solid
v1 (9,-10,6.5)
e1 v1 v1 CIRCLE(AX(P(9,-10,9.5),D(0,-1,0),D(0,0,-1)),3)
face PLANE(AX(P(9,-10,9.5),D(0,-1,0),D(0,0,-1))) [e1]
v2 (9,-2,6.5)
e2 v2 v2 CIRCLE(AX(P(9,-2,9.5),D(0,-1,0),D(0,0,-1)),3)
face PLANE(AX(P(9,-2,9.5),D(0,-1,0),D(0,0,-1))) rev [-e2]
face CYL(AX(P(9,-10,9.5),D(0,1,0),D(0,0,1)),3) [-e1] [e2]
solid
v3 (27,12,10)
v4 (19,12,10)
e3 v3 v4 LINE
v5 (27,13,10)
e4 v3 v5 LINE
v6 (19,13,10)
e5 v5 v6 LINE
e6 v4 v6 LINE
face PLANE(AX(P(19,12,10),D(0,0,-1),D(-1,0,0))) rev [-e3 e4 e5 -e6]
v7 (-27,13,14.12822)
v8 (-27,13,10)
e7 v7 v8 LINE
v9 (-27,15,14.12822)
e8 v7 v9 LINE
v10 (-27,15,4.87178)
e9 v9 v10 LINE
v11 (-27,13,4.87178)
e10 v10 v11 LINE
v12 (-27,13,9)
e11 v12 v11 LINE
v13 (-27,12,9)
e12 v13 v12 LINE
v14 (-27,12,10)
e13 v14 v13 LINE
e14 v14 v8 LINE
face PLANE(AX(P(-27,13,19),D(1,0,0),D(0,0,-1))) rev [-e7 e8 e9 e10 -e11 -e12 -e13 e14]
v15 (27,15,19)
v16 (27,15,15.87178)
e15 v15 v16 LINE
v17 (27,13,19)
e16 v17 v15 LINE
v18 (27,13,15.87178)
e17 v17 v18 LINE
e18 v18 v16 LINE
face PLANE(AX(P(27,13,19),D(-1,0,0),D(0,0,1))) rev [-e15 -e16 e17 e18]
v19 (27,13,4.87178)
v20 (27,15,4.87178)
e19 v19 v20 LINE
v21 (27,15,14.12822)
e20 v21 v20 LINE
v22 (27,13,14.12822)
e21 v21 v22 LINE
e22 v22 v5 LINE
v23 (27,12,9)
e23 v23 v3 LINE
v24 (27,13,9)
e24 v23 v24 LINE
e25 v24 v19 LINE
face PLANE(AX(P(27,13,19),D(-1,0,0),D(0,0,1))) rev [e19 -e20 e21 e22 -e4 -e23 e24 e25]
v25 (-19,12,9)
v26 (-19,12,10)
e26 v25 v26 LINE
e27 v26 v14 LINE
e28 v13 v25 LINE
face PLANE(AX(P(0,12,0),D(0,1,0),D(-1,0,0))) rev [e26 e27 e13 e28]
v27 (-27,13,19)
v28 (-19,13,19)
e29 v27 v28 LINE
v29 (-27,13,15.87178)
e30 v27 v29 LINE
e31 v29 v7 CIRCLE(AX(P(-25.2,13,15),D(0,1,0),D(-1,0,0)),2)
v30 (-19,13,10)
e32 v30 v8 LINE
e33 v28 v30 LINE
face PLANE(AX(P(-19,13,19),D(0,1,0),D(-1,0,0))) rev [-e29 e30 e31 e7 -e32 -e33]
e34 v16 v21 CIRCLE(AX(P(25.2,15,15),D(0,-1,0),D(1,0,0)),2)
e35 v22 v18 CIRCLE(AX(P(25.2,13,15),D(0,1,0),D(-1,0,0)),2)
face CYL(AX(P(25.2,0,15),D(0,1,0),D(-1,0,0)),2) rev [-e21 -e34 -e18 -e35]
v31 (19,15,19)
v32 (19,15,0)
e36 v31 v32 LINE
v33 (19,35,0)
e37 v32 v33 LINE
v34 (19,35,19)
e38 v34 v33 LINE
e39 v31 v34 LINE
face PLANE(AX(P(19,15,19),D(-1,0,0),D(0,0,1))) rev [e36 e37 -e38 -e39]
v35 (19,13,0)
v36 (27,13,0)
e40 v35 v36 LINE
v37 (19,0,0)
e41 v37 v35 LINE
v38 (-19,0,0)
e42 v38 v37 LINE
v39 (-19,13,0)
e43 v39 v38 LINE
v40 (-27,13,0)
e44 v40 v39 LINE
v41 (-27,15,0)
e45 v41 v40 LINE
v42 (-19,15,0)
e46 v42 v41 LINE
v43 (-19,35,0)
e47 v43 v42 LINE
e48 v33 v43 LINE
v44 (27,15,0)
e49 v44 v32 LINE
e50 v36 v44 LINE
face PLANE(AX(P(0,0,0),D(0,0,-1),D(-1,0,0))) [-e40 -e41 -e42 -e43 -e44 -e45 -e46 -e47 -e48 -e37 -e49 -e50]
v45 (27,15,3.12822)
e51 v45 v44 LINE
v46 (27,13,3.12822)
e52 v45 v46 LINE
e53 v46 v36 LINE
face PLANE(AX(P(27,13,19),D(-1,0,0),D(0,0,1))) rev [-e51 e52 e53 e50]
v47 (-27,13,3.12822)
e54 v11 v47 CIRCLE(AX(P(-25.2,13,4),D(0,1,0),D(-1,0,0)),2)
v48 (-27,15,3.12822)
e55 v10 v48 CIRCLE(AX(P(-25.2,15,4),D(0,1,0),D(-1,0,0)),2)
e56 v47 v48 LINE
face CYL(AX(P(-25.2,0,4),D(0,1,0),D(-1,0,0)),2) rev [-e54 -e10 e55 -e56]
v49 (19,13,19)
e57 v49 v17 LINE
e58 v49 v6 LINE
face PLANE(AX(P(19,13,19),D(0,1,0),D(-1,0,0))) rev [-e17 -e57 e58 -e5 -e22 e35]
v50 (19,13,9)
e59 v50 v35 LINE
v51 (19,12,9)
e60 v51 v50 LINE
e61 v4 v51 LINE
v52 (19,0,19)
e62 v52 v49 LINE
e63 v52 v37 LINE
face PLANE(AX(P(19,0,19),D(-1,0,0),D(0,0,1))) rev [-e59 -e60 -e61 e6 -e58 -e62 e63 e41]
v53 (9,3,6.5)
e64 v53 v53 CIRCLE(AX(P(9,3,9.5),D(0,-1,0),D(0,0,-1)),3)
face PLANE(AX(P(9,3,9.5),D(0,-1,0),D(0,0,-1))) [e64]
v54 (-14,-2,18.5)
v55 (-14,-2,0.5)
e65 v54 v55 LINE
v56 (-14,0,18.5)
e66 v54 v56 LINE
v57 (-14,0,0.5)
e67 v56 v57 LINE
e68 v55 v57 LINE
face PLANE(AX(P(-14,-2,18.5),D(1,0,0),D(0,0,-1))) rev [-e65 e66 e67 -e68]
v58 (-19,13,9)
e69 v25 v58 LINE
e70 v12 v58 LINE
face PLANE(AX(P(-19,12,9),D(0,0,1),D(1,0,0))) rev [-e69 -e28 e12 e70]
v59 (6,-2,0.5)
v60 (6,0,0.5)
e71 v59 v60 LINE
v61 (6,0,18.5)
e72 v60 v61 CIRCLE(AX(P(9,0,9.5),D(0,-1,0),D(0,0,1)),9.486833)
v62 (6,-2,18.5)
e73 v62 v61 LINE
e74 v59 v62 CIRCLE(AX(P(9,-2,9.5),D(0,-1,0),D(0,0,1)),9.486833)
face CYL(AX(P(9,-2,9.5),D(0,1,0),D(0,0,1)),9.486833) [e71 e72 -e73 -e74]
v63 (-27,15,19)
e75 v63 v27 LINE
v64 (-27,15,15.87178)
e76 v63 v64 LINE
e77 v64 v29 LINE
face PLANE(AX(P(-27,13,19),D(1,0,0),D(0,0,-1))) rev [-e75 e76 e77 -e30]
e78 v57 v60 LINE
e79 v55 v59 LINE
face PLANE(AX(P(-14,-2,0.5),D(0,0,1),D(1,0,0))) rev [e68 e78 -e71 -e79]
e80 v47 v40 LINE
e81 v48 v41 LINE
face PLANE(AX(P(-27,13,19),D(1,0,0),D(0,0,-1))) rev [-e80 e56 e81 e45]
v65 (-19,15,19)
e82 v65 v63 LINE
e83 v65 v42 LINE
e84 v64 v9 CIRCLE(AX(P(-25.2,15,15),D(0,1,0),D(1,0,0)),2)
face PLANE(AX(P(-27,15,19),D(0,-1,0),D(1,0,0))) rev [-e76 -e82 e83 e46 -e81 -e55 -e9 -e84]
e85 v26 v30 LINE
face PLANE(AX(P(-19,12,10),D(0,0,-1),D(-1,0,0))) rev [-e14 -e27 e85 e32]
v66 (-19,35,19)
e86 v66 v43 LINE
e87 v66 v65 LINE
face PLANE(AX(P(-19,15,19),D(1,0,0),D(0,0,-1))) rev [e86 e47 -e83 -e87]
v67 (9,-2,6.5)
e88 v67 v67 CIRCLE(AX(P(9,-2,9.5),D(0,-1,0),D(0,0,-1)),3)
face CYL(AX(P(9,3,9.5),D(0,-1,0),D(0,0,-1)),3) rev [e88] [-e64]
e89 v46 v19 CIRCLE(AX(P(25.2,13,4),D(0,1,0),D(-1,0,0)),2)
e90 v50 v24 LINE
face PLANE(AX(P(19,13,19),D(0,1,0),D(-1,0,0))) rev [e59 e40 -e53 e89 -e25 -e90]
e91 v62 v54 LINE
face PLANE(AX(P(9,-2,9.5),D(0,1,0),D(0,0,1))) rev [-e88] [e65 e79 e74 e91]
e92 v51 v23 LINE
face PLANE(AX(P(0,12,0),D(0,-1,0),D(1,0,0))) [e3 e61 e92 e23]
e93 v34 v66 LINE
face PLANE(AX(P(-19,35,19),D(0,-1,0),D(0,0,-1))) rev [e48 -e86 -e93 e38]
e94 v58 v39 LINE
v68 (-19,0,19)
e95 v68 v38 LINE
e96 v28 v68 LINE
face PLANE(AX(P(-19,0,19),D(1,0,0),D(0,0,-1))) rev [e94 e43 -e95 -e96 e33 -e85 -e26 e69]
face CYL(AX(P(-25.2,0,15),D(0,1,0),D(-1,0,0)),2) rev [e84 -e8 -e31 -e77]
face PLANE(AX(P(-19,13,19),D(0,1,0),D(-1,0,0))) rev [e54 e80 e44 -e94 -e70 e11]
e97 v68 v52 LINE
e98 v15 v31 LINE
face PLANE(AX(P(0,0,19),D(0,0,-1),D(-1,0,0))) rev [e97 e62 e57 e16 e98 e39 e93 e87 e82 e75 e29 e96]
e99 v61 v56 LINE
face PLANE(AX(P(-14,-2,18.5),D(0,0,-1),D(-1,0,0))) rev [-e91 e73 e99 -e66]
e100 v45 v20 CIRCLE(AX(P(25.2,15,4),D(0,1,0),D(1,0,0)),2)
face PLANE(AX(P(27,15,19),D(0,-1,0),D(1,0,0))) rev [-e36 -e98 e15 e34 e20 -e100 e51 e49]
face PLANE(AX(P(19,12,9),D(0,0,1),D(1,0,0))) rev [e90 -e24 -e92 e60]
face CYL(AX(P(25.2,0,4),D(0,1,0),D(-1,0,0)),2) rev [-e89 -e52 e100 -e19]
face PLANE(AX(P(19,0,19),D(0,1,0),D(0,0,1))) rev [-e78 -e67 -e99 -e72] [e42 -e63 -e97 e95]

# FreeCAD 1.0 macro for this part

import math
import FreeCAD as App
import Part
import Sketcher

V = App.Vector


def add_polygon(sketch, points):
    """Adds a closed chain of lines whose ends are joined by coincident constraints."""
    first, n = sketch.GeometryCount, len(points)
    for a, b in zip(points, points[1:] + points[:1]):
        sketch.addGeometry(Part.LineSegment(App.Vector(*a, 0), App.Vector(*b, 0)), False)
    for i in range(n):
        sketch.addConstraint(Sketcher.Constraint("Coincident", first + i, 2, first + (i + 1) % n, 1))

doc = App.newDocument("Part")
body = doc.addObject("PartDesign::Body", "Body")

# Sketch on XY plane
sketch1 = doc.addObject("Sketcher::SketchObject", "Sketch")
body.addObject(sketch1)
sketch1.AttachmentSupport = (doc.XY_Plane, [""])
sketch1.MapMode = "FlatFace"
add_polygon(sketch1, [(-19, 0), (19, 0), (19, 13), (27, 13), (27, 15), (19, 15), (19, 35), (-19, 35), (-19, 15), (-27, 15), (-27, 13), (-19, 13)])  # lines 0-11
sketch1.addConstraint([
    Sketcher.Constraint("Horizontal", 0),
    Sketcher.Constraint("Vertical", 1),
    Sketcher.Constraint("Horizontal", 2),
    Sketcher.Constraint("Vertical", 3),
    Sketcher.Constraint("Horizontal", 4),
    Sketcher.Constraint("Vertical", 5),
    Sketcher.Constraint("Horizontal", 6),
    Sketcher.Constraint("Vertical", 7),
    Sketcher.Constraint("Horizontal", 8),
    Sketcher.Constraint("Vertical", 9),
    Sketcher.Constraint("Horizontal", 10),
    Sketcher.Constraint("Vertical", 11),
    Sketcher.Constraint("Symmetric", 0, 2, 11, 2, -1, 1),
    Sketcher.Constraint("Symmetric", 4, 2, 7, 2, -2),
    Sketcher.Constraint("Symmetric", 2, 2, 9, 2, -2),
    Sketcher.Constraint("Vertical", 1, 2, 4, 2),
    Sketcher.Constraint("DistanceX", 0, 1, 0, 2, 38.0),
    Sketcher.Constraint("DistanceX", 2, 1, 2, 2, 8.0),
    Sketcher.Constraint("DistanceY", 1, 1, 1, 2, 13.0),
    Sketcher.Constraint("DistanceY", 3, 1, 3, 2, 2.0),
    Sketcher.Constraint("DistanceY", 5, 1, 5, 2, 20.0),
])
pad1 = doc.addObject("PartDesign::Pad", "Pad")
body.addObject(pad1)
pad1.Profile = sketch1
pad1.Length = 19

# Sketch on XZ plane
sketch2 = doc.addObject("Sketcher::SketchObject", "Sketch001")
body.addObject(sketch2)
sketch2.AttachmentSupport = (doc.XZ_Plane, [""])
sketch2.MapMode = "FlatFace"
sketch2.AttachmentOffset = App.Placement(V(0, 0, -15), App.Rotation())
sketch2.addGeometry([
    Part.Circle(V(25.2, 15, 0), V(0, 0, 1), 2),
    Part.Circle(V(25.2, 4, 0), V(0, 0, 1), 2),
    Part.Circle(V(-25.2, 4, 0), V(0, 0, 1), 2),
    Part.Circle(V(-25.2, 15, 0), V(0, 0, 1), 2),
], False)
sketch2.addConstraint([
    Sketcher.Constraint("Equal", 0, 1),
    Sketcher.Constraint("Equal", 1, 2),
    Sketcher.Constraint("Equal", 2, 3),
    Sketcher.Constraint("Symmetric", 1, 3, 2, 3, -2),
    Sketcher.Constraint("Symmetric", 0, 3, 3, 3, -2),
    Sketcher.Constraint("Vertical", 0, 3, 1, 3),
    Sketcher.Constraint("Diameter", 0, 4.0),
    Sketcher.Constraint("DistanceY", -1, 1, 0, 3, 15.0),
    Sketcher.Constraint("DistanceY", -1, 1, 1, 3, 4.0),
    Sketcher.Constraint("DistanceX", -1, 1, 0, 3, 25.2),
])
pocket1 = doc.addObject("PartDesign::Pocket", "Pocket")
body.addObject(pocket1)
pocket1.Profile = sketch2
pocket1.Type = "ThroughAll"
pocket1.Reversed = True

# Sketch on XZ plane
sketch3 = doc.addObject("Sketcher::SketchObject", "Sketch002")
body.addObject(sketch3)
sketch3.AttachmentSupport = (doc.XZ_Plane, [""])
sketch3.MapMode = "FlatFace"
sketch3.AttachmentOffset = App.Placement(V(0, 0, -13), App.Rotation())
add_polygon(sketch3, [(-27, 10), (-27, 9), (-19, 9), (-19, 10)])  # lines 0-3
add_polygon(sketch3, [(19, 10), (19, 9), (27, 9), (27, 10)])  # lines 4-7
sketch3.addConstraint([
    Sketcher.Constraint("Vertical", 0),
    Sketcher.Constraint("Horizontal", 1),
    Sketcher.Constraint("Vertical", 2),
    Sketcher.Constraint("Horizontal", 3),
    Sketcher.Constraint("Vertical", 4),
    Sketcher.Constraint("Horizontal", 5),
    Sketcher.Constraint("Vertical", 6),
    Sketcher.Constraint("Horizontal", 7),
    Sketcher.Constraint("Symmetric", 1, 2, 4, 2, -2),
    Sketcher.Constraint("Symmetric", 3, 2, 6, 2, -2),
    Sketcher.Constraint("DistanceX", 1, 1, 1, 2, 8.0),
    Sketcher.Constraint("DistanceY", 0, 2, 0, 1, 1.0),
    Sketcher.Constraint("DistanceX", 0, 2, -1, 1, 27.0),
    Sketcher.Constraint("DistanceY", -1, 1, 0, 2, 9.0),
])
pad2 = doc.addObject("PartDesign::Pad", "Pad001")
body.addObject(pad2)
pad2.Profile = sketch3
pad2.Length = 1

# Sketch on XZ plane
sketch4 = doc.addObject("Sketcher::SketchObject", "Sketch003")
body.addObject(sketch4)
sketch4.AttachmentSupport = (doc.XZ_Plane, [""])
sketch4.MapMode = "FlatFace"
sketch4.addGeometry([
    Part.LineSegment(V(6, 18.5, 0), V(-14, 18.5, 0)),
    Part.LineSegment(V(-14, 18.5, 0), V(-14, 0.5, 0)),
    Part.LineSegment(V(-14, 0.5, 0), V(6, 0.5, 0)),
    Part.ArcOfCircle(Part.Circle(V(9, 9.5, 0), V(0, 0, 1), 9.486833), math.radians(-108.434949), math.radians(108.434949)),
], False)
sketch4.addConstraint([
    Sketcher.Constraint("Coincident", 0, 2, 1, 1),
    Sketcher.Constraint("Coincident", 1, 2, 2, 1),
    Sketcher.Constraint("Coincident", 2, 2, 3, 1),
    Sketcher.Constraint("Coincident", 3, 2, 0, 1),
    Sketcher.Constraint("Horizontal", 0),
    Sketcher.Constraint("Vertical", 1),
    Sketcher.Constraint("Horizontal", 2),
    Sketcher.Constraint("Vertical", 2, 2, 3, 2),
    Sketcher.Constraint("DistanceX", 0, 2, 0, 1, 20.0),
    Sketcher.Constraint("DistanceY", 1, 2, 1, 1, 18.0),
    Sketcher.Constraint("DistanceX", -1, 1, 3, 3, 9.0),
    Sketcher.Constraint("DistanceX", 0, 2, -1, 1, 14.0),
    Sketcher.Constraint("DistanceY", -1, 1, 3, 3, 9.5),
])
pad3 = doc.addObject("PartDesign::Pad", "Pad002")
body.addObject(pad3)
pad3.Profile = sketch4
pad3.Length = 2

# Sketch on XZ plane
sketch5 = doc.addObject("Sketcher::SketchObject", "Sketch004")
body.addObject(sketch5)
sketch5.AttachmentSupport = (doc.XZ_Plane, [""])
sketch5.MapMode = "FlatFace"
sketch5.AttachmentOffset = App.Placement(V(0, 0, 2), App.Rotation())
sketch5.addGeometry(Part.Circle(V(9, 9.5, 0), V(0, 0, 1), 3), False)
sketch5.addConstraint([
    Sketcher.Constraint("Diameter", 0, 6.0),
    Sketcher.Constraint("DistanceX", -1, 1, 0, 3, 9.0),
    Sketcher.Constraint("DistanceY", -1, 1, 0, 3, 9.5),
])
pocket2 = doc.addObject("PartDesign::Pocket", "Pocket001")
body.addObject(pocket2)
pocket2.Profile = sketch5
pocket2.Length = 5
body2 = doc.addObject("PartDesign::Body", "Body001")

# Sketch on XZ plane
sketch6 = doc.addObject("Sketcher::SketchObject", "Sketch005")
body2.addObject(sketch6)
sketch6.AttachmentSupport = (doc.getObject("XZ_Plane001"), [""])
sketch6.MapMode = "FlatFace"
sketch6.AttachmentOffset = App.Placement(V(0, 0, 10), App.Rotation())
sketch6.addGeometry(Part.Circle(V(9, 9.5, 0), V(0, 0, 1), 3), False)
sketch6.addConstraint([
    Sketcher.Constraint("Diameter", 0, 6.0),
    Sketcher.Constraint("DistanceX", -1, 1, 0, 3, 9.0),
    Sketcher.Constraint("DistanceY", -1, 1, 0, 3, 9.5),
])
pad4 = doc.addObject("PartDesign::Pad", "Pad003")
body2.addObject(pad4)
pad4.Profile = sketch6
pad4.Length = 8
pad4.Reversed = True

doc.recompute()
